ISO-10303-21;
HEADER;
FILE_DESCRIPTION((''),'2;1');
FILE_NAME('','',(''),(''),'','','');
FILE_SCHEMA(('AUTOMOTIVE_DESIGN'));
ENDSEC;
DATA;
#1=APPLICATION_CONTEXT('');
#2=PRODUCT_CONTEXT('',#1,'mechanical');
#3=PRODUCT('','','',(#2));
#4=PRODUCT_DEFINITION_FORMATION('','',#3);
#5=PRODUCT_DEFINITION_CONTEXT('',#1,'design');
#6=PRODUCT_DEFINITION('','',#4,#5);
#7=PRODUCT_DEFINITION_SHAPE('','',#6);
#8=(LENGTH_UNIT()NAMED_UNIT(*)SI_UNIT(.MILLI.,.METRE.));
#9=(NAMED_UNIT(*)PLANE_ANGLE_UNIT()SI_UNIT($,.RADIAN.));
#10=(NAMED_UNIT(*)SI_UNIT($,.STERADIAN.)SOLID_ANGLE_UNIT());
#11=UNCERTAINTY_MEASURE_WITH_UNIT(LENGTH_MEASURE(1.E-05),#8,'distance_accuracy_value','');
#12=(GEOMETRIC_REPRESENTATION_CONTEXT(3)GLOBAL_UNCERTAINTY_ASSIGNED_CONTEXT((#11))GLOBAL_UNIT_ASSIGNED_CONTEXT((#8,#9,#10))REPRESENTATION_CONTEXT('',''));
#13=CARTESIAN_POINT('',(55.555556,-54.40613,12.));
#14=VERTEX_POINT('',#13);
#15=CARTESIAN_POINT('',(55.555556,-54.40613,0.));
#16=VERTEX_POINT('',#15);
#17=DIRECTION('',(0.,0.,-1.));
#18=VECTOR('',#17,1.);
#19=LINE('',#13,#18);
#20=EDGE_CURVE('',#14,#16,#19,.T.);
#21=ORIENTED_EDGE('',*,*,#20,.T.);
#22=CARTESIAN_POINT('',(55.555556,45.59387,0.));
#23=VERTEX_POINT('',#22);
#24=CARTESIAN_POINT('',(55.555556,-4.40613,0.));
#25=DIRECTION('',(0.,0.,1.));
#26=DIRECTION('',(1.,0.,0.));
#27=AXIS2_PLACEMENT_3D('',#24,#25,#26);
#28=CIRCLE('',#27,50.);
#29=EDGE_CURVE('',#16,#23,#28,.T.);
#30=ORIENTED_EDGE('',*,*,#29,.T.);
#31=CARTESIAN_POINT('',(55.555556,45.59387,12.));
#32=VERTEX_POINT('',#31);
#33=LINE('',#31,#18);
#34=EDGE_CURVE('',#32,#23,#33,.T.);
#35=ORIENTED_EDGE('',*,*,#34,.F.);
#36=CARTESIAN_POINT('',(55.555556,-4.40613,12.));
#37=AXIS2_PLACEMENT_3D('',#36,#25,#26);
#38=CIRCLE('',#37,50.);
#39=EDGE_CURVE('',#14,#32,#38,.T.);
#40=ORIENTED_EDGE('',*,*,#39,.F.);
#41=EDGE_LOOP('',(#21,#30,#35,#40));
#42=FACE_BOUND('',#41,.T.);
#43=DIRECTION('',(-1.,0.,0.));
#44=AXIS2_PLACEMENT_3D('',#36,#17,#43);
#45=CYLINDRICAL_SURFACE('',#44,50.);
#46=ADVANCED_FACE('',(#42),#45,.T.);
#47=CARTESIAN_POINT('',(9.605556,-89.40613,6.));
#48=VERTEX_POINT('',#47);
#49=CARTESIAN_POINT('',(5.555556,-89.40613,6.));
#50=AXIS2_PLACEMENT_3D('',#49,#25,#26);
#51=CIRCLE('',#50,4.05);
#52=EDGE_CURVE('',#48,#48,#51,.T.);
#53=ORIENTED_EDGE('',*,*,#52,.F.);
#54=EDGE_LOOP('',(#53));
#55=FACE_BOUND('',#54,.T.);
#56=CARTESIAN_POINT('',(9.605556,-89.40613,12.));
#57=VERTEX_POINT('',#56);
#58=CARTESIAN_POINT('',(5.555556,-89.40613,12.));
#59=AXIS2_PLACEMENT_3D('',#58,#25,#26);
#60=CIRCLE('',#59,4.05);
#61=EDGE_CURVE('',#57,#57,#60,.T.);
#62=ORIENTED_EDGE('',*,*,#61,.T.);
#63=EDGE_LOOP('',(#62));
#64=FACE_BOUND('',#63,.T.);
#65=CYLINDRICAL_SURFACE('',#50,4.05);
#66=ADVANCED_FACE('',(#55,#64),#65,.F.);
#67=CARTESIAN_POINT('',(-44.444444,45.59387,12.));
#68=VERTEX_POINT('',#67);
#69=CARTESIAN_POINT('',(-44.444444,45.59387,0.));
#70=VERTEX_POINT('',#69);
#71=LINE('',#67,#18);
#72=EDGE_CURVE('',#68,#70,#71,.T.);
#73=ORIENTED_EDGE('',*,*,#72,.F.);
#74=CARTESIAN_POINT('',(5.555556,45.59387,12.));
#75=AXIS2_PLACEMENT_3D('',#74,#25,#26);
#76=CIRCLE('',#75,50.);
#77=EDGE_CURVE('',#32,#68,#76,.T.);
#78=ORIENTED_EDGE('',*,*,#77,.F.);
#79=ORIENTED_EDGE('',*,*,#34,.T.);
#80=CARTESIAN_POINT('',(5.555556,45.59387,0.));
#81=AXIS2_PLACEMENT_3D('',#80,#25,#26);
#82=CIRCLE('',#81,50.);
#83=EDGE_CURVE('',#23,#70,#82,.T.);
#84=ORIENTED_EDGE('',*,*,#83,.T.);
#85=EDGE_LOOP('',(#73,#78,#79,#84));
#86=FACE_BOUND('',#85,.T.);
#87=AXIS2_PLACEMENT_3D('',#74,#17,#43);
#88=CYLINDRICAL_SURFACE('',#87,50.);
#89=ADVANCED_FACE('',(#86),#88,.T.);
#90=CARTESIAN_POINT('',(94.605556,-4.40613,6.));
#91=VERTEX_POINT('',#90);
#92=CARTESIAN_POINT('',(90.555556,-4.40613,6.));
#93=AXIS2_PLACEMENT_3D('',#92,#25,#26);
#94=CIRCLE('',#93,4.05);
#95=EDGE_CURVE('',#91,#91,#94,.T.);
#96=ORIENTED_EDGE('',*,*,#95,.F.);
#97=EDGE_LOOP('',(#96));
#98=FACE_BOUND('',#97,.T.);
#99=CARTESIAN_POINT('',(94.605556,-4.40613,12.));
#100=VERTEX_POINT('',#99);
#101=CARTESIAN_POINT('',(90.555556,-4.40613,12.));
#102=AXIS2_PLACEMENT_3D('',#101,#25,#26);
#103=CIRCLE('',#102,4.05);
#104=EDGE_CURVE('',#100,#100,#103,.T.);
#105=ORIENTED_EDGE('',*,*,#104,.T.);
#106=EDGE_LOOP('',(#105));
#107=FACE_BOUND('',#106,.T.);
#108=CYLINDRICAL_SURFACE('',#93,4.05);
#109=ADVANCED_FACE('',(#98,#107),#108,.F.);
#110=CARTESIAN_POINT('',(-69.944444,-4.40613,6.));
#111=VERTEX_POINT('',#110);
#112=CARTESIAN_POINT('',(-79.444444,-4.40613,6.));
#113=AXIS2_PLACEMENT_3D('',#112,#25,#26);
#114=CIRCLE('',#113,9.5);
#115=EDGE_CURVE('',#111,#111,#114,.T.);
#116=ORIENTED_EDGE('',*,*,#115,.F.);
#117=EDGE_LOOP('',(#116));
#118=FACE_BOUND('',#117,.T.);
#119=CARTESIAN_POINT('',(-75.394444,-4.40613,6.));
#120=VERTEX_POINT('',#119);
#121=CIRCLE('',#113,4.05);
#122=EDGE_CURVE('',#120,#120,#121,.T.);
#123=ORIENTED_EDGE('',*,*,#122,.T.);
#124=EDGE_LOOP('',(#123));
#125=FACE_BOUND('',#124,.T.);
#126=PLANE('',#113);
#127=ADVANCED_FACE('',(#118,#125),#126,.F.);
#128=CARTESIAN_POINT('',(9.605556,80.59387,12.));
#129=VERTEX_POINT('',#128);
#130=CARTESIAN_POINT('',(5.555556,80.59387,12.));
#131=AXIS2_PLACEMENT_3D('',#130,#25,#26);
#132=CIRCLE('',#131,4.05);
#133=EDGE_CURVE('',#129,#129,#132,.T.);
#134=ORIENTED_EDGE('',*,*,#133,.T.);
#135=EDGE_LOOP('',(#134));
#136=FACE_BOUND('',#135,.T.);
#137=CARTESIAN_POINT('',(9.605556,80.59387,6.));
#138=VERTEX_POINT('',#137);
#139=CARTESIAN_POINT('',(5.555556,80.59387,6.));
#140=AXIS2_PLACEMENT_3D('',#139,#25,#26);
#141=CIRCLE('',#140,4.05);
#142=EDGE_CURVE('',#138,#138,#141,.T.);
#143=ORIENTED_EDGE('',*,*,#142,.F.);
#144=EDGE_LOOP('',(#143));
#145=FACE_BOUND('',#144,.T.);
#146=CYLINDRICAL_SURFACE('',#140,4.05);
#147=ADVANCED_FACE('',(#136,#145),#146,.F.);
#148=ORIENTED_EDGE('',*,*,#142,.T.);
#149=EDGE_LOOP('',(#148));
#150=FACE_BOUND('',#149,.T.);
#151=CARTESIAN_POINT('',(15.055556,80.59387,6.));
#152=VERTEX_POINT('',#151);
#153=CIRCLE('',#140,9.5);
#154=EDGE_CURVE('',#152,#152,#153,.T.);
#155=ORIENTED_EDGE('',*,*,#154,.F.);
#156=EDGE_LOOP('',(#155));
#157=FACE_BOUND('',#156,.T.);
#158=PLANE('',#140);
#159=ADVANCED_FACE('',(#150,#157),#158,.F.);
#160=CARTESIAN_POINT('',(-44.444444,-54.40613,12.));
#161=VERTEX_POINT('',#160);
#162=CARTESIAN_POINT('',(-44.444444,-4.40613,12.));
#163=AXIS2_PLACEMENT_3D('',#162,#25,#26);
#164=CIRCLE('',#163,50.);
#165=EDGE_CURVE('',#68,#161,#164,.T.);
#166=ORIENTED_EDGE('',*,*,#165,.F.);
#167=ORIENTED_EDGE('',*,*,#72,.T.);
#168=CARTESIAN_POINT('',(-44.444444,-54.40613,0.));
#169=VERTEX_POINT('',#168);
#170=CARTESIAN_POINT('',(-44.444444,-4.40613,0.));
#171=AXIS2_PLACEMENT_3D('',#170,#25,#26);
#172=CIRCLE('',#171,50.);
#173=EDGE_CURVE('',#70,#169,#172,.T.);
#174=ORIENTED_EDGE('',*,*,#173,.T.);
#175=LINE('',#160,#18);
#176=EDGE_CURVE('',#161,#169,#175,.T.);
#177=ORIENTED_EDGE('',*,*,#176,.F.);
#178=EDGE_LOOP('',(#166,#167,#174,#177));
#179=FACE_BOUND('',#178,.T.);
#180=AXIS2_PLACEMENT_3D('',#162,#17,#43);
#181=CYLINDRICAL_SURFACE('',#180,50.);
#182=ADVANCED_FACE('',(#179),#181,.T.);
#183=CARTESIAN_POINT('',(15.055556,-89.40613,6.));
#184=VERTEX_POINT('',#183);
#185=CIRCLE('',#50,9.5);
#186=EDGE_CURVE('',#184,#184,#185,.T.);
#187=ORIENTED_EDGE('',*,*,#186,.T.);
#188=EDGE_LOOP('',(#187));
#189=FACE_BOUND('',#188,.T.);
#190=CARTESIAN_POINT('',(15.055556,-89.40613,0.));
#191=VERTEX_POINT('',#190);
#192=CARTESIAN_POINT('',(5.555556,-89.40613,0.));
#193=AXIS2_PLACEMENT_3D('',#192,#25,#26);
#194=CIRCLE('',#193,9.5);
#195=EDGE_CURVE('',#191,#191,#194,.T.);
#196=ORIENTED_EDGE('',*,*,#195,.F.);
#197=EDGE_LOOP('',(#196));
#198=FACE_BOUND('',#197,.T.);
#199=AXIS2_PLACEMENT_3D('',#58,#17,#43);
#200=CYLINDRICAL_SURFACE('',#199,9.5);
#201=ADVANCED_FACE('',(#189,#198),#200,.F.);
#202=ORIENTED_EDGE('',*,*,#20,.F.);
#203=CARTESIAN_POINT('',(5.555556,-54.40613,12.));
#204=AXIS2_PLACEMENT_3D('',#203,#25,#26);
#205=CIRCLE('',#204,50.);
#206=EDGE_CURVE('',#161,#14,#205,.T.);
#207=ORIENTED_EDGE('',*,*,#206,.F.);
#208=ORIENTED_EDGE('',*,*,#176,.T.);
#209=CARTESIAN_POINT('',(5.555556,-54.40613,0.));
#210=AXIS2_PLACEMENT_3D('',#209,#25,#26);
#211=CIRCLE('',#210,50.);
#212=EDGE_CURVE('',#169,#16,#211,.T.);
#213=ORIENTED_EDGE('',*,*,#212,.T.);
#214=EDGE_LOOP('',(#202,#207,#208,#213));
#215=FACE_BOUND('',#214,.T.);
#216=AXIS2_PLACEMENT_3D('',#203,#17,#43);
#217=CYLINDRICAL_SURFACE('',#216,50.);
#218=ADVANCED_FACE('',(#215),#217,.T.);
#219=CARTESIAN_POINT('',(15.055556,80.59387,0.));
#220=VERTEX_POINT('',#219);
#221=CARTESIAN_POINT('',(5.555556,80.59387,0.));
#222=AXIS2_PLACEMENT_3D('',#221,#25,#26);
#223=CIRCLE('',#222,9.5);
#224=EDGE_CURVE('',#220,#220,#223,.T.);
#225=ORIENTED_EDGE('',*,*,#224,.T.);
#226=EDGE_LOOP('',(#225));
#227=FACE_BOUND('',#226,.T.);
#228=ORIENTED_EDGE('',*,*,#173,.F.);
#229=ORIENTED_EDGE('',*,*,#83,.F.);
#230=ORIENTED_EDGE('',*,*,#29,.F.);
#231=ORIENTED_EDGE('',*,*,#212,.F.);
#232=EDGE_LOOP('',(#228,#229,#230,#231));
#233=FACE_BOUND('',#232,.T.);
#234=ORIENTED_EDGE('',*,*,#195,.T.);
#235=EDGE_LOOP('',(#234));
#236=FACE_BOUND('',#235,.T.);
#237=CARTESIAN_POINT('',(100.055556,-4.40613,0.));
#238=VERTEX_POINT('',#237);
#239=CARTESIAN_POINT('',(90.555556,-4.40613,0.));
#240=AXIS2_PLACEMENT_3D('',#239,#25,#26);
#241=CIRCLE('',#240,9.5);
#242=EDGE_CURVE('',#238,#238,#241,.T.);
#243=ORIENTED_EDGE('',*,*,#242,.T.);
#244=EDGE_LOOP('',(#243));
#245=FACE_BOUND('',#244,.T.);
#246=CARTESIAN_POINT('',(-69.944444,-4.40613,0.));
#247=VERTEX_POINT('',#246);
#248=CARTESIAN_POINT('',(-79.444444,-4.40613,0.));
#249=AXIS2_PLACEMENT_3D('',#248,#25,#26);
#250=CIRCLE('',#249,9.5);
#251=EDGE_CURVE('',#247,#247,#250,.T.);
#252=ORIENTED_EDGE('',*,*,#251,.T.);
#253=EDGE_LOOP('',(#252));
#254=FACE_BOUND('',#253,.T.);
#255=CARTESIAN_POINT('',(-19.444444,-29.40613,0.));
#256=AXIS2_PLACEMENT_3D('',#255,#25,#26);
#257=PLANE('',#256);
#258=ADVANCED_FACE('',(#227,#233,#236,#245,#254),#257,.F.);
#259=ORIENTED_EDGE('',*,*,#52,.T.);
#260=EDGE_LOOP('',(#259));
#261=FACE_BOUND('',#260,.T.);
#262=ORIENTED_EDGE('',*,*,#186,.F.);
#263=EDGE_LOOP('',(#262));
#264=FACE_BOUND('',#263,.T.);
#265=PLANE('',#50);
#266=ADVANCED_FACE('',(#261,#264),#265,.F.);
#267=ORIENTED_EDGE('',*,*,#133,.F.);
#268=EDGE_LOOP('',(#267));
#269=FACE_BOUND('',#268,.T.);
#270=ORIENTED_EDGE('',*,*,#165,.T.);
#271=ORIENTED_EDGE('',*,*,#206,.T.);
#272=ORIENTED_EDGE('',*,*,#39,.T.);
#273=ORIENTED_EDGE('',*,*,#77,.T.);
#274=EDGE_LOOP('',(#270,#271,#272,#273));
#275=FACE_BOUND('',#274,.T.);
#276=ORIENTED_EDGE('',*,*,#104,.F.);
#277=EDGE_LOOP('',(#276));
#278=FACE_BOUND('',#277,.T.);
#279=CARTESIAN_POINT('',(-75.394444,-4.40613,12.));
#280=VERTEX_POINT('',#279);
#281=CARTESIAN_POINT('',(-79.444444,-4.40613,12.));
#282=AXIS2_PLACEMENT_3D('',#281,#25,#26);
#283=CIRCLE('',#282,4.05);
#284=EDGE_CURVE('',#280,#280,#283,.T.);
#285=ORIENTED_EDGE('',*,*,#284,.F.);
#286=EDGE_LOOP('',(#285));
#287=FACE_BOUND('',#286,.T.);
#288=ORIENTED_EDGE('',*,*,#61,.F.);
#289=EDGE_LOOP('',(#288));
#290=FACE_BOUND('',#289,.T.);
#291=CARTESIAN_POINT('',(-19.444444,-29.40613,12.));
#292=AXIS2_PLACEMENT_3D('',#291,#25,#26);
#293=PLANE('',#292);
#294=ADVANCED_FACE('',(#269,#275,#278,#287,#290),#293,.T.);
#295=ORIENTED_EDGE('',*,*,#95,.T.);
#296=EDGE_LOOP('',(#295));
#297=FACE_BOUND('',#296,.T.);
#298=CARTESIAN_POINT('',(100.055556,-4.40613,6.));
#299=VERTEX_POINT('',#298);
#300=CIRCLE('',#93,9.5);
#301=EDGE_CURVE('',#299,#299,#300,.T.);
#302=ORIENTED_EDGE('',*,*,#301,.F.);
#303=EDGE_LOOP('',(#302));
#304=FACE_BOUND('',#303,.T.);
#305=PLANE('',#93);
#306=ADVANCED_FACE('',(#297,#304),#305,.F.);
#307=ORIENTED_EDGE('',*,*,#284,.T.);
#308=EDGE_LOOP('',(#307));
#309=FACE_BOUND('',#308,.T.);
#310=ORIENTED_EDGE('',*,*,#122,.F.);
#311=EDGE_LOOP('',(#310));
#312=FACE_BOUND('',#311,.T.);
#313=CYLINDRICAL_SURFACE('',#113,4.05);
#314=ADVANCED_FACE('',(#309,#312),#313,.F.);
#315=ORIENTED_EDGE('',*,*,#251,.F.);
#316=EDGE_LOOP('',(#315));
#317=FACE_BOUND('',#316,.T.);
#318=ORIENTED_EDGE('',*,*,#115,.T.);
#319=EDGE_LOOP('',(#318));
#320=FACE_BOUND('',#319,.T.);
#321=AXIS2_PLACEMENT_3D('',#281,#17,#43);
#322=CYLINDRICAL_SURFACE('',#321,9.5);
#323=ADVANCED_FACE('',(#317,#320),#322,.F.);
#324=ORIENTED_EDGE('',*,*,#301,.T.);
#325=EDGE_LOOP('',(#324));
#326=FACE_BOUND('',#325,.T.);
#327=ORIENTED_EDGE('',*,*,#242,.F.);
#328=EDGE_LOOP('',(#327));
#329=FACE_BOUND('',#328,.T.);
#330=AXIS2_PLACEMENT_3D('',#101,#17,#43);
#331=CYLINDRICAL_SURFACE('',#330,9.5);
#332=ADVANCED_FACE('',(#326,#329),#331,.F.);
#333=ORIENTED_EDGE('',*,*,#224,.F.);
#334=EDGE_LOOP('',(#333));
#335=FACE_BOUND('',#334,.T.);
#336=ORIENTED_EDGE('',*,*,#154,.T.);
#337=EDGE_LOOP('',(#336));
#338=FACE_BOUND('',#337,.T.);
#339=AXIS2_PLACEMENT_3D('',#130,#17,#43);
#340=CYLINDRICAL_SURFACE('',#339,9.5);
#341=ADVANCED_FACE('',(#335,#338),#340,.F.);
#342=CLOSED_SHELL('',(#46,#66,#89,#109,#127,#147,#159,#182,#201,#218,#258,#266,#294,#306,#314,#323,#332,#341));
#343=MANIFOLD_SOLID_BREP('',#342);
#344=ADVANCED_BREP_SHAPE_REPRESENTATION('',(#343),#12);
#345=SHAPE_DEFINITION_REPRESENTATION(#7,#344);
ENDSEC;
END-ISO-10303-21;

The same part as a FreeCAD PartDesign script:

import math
import FreeCAD as App
import Part
import Sketcher
Q = App.Units.Quantity

doc = App.newDocument("Part")
body = doc.addObject("PartDesign::Body", "Body")

sketch1 = body.newObject("Sketcher::SketchObject", "Sketch")
sketch1.AttachmentSupport = (doc.getObject("XY_Plane"), [""])
sketch1.MapMode = "FlatFace"
sketch1.addGeometry([
    Part.ArcOfCircle(Part.Circle(App.Vector(5.555556, 45.59387, 0), App.Vector(0, 0, 1), 50), math.radians(0), math.radians(180)),
    Part.ArcOfCircle(Part.Circle(App.Vector(-44.444444, -4.40613, 0), App.Vector(0, 0, 1), 50), math.radians(90), math.radians(270)),
    Part.ArcOfCircle(Part.Circle(App.Vector(5.555556, -54.40613, 0), App.Vector(0, 0, 1), 50), math.radians(180), math.radians(360)),
    Part.ArcOfCircle(Part.Circle(App.Vector(55.555556, -4.40613, 0), App.Vector(0, 0, 1), 50), math.radians(-90), math.radians(90)),
    Part.Circle(App.Vector(5.555556, -89.40613, 0), App.Vector(0, 0, 1), 9.5),
    Part.Circle(App.Vector(-79.444444, -4.40613, 0), App.Vector(0, 0, 1), 9.5),
    Part.Circle(App.Vector(90.555556, -4.40613, 0), App.Vector(0, 0, 1), 9.5),
    Part.Circle(App.Vector(5.555556, 80.59387, 0), App.Vector(0, 0, 1), 9.5),
], False)
sketch1.addConstraint([
    Sketcher.Constraint("Coincident", 0, 2, 1, 1),
    Sketcher.Constraint("Coincident", 1, 2, 2, 1),
    Sketcher.Constraint("Coincident", 2, 2, 3, 1),
    Sketcher.Constraint("Coincident", 3, 2, 0, 1),
    Sketcher.Constraint("Equal", 0, 1),
    Sketcher.Constraint("Equal", 1, 2),
    Sketcher.Constraint("Equal", 2, 3),
    Sketcher.Constraint("Equal", 4, 5),
    Sketcher.Constraint("Equal", 5, 6),
    Sketcher.Constraint("Equal", 6, 7),
    Sketcher.Constraint("Horizontal", 1, 3, 3, 3),
    Sketcher.Constraint("Horizontal", 3, 3, 5, 3),
    Sketcher.Constraint("Horizontal", 5, 3, 6, 3),
    Sketcher.Constraint("Horizontal", 2, 3, 1, 2),
    Sketcher.Constraint("Vertical", 0, 3, 2, 3),
    Sketcher.Constraint("Vertical", 2, 3, 4, 3),
    Sketcher.Constraint("Vertical", 4, 3, 7, 3),
    Sketcher.Constraint("Vertical", 1, 3, 0, 2),
    Sketcher.Constraint("Vertical", 3, 3, 2, 2),
    Sketcher.Constraint("Diameter", 4, Q("19 mm")),
    Sketcher.Constraint("Radius", 0, Q("50 mm")),
    Sketcher.Constraint("DistanceY", 1, 3, 0, 3, Q("50 mm")),
    Sketcher.Constraint("DistanceY", 4, 3, 2, 3, Q("35 mm")),
    Sketcher.Constraint("DistanceX", 5, 3, 1, 3, Q("35 mm")),
    Sketcher.Constraint("DistanceX", 3, 3, 6, 3, Q("35 mm")),
    Sketcher.Constraint("DistanceY", 0, 3, 7, 3, Q("35 mm")),
    Sketcher.Constraint("DistanceY", -1, 1, 0, 3, Q("45.59387 mm")),
    Sketcher.Constraint("DistanceX", -1, 1, 0, 3, Q("5.555556 mm")),
])
pad1 = body.newObject("PartDesign::Pad", "Pad")
pad1.Profile = sketch1
pad1.Length = 12

sketch2 = body.newObject("Sketcher::SketchObject", "Sketch001")
sketch2.AttachmentSupport = (doc.getObject("XY_Plane"), [""])
sketch2.MapMode = "FlatFace"
sketch2.AttachmentOffset = App.Placement(App.Vector(0, 0, 6), App.Rotation())
sketch2.addGeometry([
    Part.Circle(App.Vector(5.555556, 80.59387, 0), App.Vector(0, 0, 1), 9.5),
    Part.Circle(App.Vector(5.555556, 80.59387, 0), App.Vector(0, 0, 1), 4.05),
    Part.Circle(App.Vector(90.555556, -4.40613, 0), App.Vector(0, 0, 1), 9.5),
    Part.Circle(App.Vector(90.555556, -4.40613, 0), App.Vector(0, 0, 1), 4.05),
    Part.Circle(App.Vector(5.555556, -89.40613, 0), App.Vector(0, 0, 1), 9.5),
    Part.Circle(App.Vector(5.555556, -89.40613, 0), App.Vector(0, 0, 1), 4.05),
    Part.Circle(App.Vector(-79.444444, -4.40613, 0), App.Vector(0, 0, 1), 9.5),
    Part.Circle(App.Vector(-79.444444, -4.40613, 0), App.Vector(0, 0, 1), 4.05),
], False)
sketch2.addConstraint([
    Sketcher.Constraint("Coincident", 1, 3, 0, 3),
    Sketcher.Constraint("Coincident", 3, 3, 2, 3),
    Sketcher.Constraint("Coincident", 5, 3, 4, 3),
    Sketcher.Constraint("Coincident", 7, 3, 6, 3),
    Sketcher.Constraint("Equal", 0, 2),
    Sketcher.Constraint("Equal", 1, 3),
    Sketcher.Constraint("Equal", 2, 4),
    Sketcher.Constraint("Equal", 3, 5),
    Sketcher.Constraint("Equal", 4, 6),
    Sketcher.Constraint("Equal", 5, 7),
    Sketcher.Constraint("Horizontal", 3, 3, 6, 3),
    Sketcher.Constraint("Vertical", 1, 3, 4, 3),
    Sketcher.Constraint("Diameter", 0, Q("19 mm")),
    Sketcher.Constraint("Diameter", 1, Q("8.1 mm")),
    Sketcher.Constraint("DistanceX", 0, 3, 2, 3, Q("85 mm")),
    Sketcher.Constraint("DistanceY", 2, 3, 0, 3, Q("85 mm")),
    Sketcher.Constraint("DistanceY", 4, 3, 2, 3, Q("85 mm")),
    Sketcher.Constraint("DistanceX", 6, 3, 0, 3, Q("85 mm")),
    Sketcher.Constraint("DistanceY", -1, 1, 0, 3, Q("80.59387 mm")),
    Sketcher.Constraint("DistanceX", -1, 1, 0, 3, Q("5.555556 mm")),
])
pad2 = body.newObject("PartDesign::Pad", "Pad001")
pad2.Profile = sketch2
pad2.Length = 6

doc.recompute()
